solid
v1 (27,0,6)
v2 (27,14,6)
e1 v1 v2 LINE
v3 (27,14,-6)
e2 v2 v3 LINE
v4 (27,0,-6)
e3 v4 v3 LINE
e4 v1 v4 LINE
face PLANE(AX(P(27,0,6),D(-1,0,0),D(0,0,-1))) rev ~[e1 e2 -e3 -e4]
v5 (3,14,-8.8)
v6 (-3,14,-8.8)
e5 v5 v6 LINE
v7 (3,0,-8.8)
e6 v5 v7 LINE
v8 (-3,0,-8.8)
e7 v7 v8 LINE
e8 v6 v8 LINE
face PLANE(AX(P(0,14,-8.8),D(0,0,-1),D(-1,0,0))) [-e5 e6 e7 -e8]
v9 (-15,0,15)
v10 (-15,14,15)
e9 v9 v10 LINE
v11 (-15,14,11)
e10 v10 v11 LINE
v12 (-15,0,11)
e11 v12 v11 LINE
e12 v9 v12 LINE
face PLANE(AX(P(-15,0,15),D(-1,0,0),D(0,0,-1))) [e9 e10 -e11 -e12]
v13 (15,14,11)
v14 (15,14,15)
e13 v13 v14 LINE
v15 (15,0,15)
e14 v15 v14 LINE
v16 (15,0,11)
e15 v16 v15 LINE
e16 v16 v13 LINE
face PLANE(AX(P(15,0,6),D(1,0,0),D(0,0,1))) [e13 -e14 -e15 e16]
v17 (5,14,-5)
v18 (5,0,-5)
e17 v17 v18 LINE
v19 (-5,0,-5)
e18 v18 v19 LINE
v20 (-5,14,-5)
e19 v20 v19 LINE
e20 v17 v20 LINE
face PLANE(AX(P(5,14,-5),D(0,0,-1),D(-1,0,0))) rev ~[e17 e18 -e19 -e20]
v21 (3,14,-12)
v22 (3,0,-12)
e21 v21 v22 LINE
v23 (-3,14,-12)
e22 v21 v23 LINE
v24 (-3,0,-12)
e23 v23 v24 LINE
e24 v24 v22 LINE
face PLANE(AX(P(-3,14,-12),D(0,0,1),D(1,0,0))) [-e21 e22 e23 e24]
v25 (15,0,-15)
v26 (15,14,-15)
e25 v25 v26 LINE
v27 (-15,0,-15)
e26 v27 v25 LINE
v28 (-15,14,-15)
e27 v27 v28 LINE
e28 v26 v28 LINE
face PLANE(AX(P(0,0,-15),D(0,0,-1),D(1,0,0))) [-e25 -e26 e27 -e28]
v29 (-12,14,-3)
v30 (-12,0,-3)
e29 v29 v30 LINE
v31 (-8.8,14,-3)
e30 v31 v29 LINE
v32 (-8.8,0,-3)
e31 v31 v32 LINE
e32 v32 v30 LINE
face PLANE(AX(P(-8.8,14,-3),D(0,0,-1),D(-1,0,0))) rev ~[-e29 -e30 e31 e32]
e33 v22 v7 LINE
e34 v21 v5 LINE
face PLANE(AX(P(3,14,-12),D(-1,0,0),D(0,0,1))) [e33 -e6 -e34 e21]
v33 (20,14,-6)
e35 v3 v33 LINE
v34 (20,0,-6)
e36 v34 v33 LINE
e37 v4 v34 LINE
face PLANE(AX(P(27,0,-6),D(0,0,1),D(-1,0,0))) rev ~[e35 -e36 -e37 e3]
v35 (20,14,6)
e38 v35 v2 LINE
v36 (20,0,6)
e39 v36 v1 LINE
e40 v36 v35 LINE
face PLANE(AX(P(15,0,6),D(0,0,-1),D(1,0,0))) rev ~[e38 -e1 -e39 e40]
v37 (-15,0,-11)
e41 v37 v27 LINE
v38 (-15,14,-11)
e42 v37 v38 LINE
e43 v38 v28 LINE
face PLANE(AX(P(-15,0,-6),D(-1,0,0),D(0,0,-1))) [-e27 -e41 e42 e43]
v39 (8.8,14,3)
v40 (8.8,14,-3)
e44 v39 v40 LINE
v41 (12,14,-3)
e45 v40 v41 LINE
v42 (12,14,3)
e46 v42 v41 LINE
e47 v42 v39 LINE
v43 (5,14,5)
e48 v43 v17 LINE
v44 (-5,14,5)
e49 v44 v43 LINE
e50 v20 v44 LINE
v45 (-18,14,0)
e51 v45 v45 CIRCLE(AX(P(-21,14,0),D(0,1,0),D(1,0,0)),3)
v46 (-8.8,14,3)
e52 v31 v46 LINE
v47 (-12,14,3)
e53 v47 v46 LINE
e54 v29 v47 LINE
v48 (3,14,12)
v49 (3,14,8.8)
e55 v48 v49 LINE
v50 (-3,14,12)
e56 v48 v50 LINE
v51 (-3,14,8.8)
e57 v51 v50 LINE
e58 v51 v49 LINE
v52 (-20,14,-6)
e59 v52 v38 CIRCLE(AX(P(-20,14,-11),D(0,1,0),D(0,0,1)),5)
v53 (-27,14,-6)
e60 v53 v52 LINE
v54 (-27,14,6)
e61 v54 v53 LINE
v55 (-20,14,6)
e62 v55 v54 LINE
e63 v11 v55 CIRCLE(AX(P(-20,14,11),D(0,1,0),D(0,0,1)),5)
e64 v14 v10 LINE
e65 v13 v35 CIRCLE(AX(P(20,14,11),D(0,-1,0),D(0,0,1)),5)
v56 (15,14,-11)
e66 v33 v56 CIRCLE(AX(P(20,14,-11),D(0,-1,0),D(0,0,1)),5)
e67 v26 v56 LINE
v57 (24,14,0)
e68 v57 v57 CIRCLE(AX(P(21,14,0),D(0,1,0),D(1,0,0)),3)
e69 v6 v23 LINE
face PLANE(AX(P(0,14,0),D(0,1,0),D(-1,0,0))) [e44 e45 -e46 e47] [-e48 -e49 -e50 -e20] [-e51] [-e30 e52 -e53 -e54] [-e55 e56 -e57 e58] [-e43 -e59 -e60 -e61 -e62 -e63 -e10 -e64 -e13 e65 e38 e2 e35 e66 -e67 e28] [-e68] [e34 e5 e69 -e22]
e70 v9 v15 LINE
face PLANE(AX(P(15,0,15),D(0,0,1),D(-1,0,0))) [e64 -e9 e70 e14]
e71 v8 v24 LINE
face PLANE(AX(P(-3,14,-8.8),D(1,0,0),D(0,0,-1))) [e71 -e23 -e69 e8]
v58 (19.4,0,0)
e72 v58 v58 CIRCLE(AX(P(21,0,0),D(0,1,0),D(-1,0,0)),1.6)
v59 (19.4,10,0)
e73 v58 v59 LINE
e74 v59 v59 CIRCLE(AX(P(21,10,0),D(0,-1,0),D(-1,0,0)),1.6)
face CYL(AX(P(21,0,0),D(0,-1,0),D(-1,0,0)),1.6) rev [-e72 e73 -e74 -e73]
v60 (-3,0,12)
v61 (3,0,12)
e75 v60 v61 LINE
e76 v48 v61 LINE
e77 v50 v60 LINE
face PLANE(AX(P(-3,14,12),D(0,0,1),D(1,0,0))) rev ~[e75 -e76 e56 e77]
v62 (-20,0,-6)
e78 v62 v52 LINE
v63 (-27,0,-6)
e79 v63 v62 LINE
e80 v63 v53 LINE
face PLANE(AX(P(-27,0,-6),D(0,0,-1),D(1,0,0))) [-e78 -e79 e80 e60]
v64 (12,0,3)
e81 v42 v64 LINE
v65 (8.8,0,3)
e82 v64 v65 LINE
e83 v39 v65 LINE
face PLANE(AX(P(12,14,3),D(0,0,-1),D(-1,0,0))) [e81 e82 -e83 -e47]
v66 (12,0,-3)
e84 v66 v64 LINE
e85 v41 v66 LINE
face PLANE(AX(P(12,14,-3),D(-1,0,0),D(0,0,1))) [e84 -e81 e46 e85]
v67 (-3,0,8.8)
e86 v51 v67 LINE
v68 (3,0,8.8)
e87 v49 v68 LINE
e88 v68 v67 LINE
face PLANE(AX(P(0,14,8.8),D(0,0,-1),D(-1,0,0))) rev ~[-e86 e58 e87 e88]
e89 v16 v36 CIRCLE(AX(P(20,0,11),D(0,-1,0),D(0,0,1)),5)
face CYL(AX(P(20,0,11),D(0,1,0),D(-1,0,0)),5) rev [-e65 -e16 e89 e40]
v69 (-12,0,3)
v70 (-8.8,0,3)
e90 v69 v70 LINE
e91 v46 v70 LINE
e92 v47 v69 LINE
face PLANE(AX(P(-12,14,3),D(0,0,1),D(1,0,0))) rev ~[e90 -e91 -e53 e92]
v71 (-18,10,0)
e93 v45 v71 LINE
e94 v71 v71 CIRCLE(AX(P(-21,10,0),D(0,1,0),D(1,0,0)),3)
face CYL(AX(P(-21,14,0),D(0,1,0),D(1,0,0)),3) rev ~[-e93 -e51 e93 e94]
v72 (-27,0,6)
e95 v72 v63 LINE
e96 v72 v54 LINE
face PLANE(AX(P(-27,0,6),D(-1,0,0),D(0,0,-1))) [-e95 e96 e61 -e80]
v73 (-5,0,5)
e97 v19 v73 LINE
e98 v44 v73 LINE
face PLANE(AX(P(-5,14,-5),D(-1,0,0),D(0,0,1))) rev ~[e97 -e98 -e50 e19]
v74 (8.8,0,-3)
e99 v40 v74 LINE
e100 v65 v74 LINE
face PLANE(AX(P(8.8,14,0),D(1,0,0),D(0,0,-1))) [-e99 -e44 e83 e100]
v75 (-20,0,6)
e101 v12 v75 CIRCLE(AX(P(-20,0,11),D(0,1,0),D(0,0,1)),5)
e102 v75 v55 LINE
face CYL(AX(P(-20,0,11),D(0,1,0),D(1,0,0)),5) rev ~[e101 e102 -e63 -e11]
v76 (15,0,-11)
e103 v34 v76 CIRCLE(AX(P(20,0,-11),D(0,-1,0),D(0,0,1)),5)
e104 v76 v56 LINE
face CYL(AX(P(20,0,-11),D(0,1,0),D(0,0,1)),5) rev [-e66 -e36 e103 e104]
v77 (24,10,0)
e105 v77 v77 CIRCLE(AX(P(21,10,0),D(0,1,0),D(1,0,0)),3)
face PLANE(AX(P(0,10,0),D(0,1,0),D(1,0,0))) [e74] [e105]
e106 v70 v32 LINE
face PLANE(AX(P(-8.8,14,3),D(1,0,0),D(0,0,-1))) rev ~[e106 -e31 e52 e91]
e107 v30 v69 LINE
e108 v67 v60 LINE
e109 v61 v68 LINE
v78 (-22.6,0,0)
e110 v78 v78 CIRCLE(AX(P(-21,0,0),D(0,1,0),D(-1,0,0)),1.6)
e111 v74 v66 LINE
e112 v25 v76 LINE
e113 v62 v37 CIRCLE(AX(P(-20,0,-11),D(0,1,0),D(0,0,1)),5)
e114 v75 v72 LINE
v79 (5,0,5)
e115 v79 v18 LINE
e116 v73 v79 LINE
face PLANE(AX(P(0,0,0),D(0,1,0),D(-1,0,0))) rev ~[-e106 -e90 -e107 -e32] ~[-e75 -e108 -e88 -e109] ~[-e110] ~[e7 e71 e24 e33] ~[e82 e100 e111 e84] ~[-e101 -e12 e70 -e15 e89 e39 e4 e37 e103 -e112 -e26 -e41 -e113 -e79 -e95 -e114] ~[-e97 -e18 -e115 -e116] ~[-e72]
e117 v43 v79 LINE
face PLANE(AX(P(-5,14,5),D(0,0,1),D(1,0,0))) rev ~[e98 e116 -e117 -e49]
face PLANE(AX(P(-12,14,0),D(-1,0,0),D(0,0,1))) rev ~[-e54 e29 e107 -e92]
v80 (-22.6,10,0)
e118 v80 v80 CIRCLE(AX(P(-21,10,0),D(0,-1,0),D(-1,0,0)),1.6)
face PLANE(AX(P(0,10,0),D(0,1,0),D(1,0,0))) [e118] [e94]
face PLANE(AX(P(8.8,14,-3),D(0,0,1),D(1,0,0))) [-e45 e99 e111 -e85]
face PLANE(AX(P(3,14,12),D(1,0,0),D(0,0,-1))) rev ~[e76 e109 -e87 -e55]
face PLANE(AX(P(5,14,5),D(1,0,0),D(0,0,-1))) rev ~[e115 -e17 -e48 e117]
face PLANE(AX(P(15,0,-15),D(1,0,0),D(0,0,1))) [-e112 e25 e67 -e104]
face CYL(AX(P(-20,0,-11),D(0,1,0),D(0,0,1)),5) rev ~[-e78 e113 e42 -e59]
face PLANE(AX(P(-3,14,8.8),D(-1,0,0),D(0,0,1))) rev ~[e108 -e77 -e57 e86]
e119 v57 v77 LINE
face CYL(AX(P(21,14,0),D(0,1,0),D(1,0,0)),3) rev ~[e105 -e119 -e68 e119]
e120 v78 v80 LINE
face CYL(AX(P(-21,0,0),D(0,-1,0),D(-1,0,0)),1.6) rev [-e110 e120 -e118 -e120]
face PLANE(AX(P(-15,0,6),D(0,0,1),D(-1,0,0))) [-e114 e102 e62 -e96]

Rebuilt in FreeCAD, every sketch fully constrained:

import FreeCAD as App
import Part
import Sketcher
from FreeCAD import Vector
Q = App.Units.Quantity


def edges_at(feature, points):
    """Names of the edges that pass closest to the given points."""
    edges = feature.Shape.Edges
    near = lambda p: min(range(len(edges)), key=lambda i: edges[i].distToShape(Part.Vertex(*p))[0])
    return sorted({f"Edge{near(p) + 1}" for p in points})


def add_polygon(sketch, points):
    """Adds a closed chain of lines whose ends are joined by coincident constraints."""
    first, n = sketch.GeometryCount, len(points)
    for a, b in zip(points, points[1:] + points[:1]):
        sketch.addGeometry(Part.LineSegment(App.Vector(*a, 0), App.Vector(*b, 0)), False)
    for i in range(n):
        sketch.addConstraint(Sketcher.Constraint("Coincident", first + i, 2, first + (i + 1) % n, 1))

doc = App.newDocument("Part")
params = doc.addObject("Spreadsheet::Sheet", "Params")
for row, (alias, value) in enumerate([
    ("sketch1_diameter", "3.2 mm"),
    ("sketch1_width", "12 mm"),
    ("sketch1_width2", "30 mm"),
    ("sketch1_height", "9 mm"),
    ("pad1_length", "14 mm"),
    ("sketch2_width", "6 mm"),
    ("sketch2_width2", "3.2 mm"),
    ("sketch3_diameter", "6 mm"),
    ("pocket2_length", "4 mm"),
    ("fillet_radius", "5 mm"),
    ("sketch4_width", "10 mm"),
], start=1):
    params.set(f"A{row}", alias)
    params.set(f"B{row}", "=" + value)
    params.setAlias(f"B{row}", alias)

body = doc.addObject("PartDesign::Body", "Body")

sketch1 = doc.addObject("Sketcher::SketchObject", "Sketch")
body.addObject(sketch1)
sketch1.AttachmentSupport = (doc.XZ_Plane, [""])
sketch1.MapMode = "FlatFace"
add_polygon(sketch1, [(15, 15), (15, 6), (27, 6), (27, -6), (15, -6), (15, -15), (-15, -15), (-15, -6), (-27, -6), (-27, 6), (-15, 6), (-15, 15)])
sketch1.addGeometry(Part.Circle(Vector(21, 0, 0), Vector(0, 0, 1), 1.6), False)
sketch1.addGeometry(Part.Circle(Vector(-21, 0, 0), Vector(0, 0, 1), 1.6), False)
sketch1.addConstraint(Sketcher.Constraint("Vertical", 0))
sketch1.addConstraint(Sketcher.Constraint("Horizontal", 1))
sketch1.addConstraint(Sketcher.Constraint("Vertical", 2))
sketch1.addConstraint(Sketcher.Constraint("Horizontal", 3))
sketch1.addConstraint(Sketcher.Constraint("Vertical", 4))
sketch1.addConstraint(Sketcher.Constraint("Horizontal", 5))
sketch1.addConstraint(Sketcher.Constraint("Vertical", 6))
sketch1.addConstraint(Sketcher.Constraint("Horizontal", 7))
sketch1.addConstraint(Sketcher.Constraint("Vertical", 8))
sketch1.addConstraint(Sketcher.Constraint("Horizontal", 9))
sketch1.addConstraint(Sketcher.Constraint("Vertical", 10))
sketch1.addConstraint(Sketcher.Constraint("Horizontal", 11))
sketch1.addConstraint(Sketcher.Constraint("Equal", 12, 13))
sketch1.addConstraint(Sketcher.Constraint("Symmetric", 12, 3, 13, 3, -1, 1))
sketch1.addConstraint(Sketcher.Constraint("Symmetric", 0, 2, 6, 2, -1, 1))
sketch1.addConstraint(Sketcher.Constraint("Symmetric", 2, 2, 8, 2, -1, 1))
sketch1.addConstraint(Sketcher.Constraint("Symmetric", 4, 2, 10, 2, -1, 1))
sketch1.addConstraint(Sketcher.Constraint("Symmetric", 3, 2, 6, 2, -2))
sketch1.addConstraint(Sketcher.Constraint("PointOnObject", 12, 3, -1))
sketch1.addConstraint(Sketcher.Constraint("Equal", 9, 2))
sketch1.addConstraint(Sketcher.Constraint("Diameter", 12, Q("3.2 mm")))
sketch1.addConstraint(Sketcher.Constraint("DistanceX", 1, 1, 1, 2, Q("12 mm")))
sketch1.addConstraint(Sketcher.Constraint("DistanceX", 5, 2, 5, 1, Q("30 mm")))
sketch1.addConstraint(Sketcher.Constraint("DistanceY", 0, 2, 0, 1, Q("9 mm")))
sketch1.addConstraint(Sketcher.Constraint("DistanceX", -1, 1, 12, 3, Q("21 mm")))
sketch1.setExpression("Constraints[32]", "Params.sketch1_diameter")
sketch1.setExpression("Constraints[33]", "Params.sketch1_width")
sketch1.setExpression("Constraints[34]", "Params.sketch1_width2")
sketch1.setExpression("Constraints[35]", "Params.sketch1_height")
pad1 = doc.addObject("PartDesign::Pad", "Pad")
body.addObject(pad1)
pad1.Profile = sketch1
pad1.setExpression("Length", "Params.pad1_length")
pad1.Reversed = True

sketch2 = doc.addObject("Sketcher::SketchObject", "Sketch001")
body.addObject(sketch2)
sketch2.AttachmentSupport = (doc.XZ_Plane, [""])
sketch2.MapMode = "FlatFace"
sketch2.AttachmentOffset = App.Placement(Vector(0, 0, -14), App.Rotation())
add_polygon(sketch2, [(-3, 8.8), (-3, 12), (3, 12), (3, 8.8)])
add_polygon(sketch2, [(-8.8, 3), (-8.8, -3), (-12, -3), (-12, 3)])
add_polygon(sketch2, [(8.8, -3), (8.8, 3), (12, 3), (12, -3)])
add_polygon(sketch2, [(-3, -8.8), (3, -8.8), (3, -12), (-3, -12)])
sketch2.addConstraint(Sketcher.Constraint("Vertical", 0))
sketch2.addConstraint(Sketcher.Constraint("Horizontal", 1))
sketch2.addConstraint(Sketcher.Constraint("Vertical", 2))
sketch2.addConstraint(Sketcher.Constraint("Horizontal", 3))
sketch2.addConstraint(Sketcher.Constraint("Vertical", 4))
sketch2.addConstraint(Sketcher.Constraint("Horizontal", 5))
sketch2.addConstraint(Sketcher.Constraint("Vertical", 6))
sketch2.addConstraint(Sketcher.Constraint("Horizontal", 7))
sketch2.addConstraint(Sketcher.Constraint("Vertical", 8))
sketch2.addConstraint(Sketcher.Constraint("Horizontal", 9))
sketch2.addConstraint(Sketcher.Constraint("Vertical", 10))
sketch2.addConstraint(Sketcher.Constraint("Horizontal", 11))
sketch2.addConstraint(Sketcher.Constraint("Horizontal", 12))
sketch2.addConstraint(Sketcher.Constraint("Vertical", 13))
sketch2.addConstraint(Sketcher.Constraint("Horizontal", 14))
sketch2.addConstraint(Sketcher.Constraint("Vertical", 15))
sketch2.addConstraint(Sketcher.Constraint("Symmetric", 4, 2, 8, 2, -1, 1))
sketch2.addConstraint(Sketcher.Constraint("Symmetric", 6, 2, 10, 2, -1, 1))
sketch2.addConstraint(Sketcher.Constraint("Symmetric", 3, 2, 12, 2, -1, 1))
sketch2.addConstraint(Sketcher.Constraint("Symmetric", 1, 2, 14, 2, -1, 1))
sketch2.addConstraint(Sketcher.Constraint("Horizontal", 7, 2, 8, 2))
sketch2.addConstraint(Sketcher.Constraint("Vertical", 2, 2, 12, 2))
sketch2.addConstraint(Sketcher.Constraint("Equal", 11, 0))
sketch2.addConstraint(Sketcher.Constraint("Equal", 14, 4))
sketch2.addConstraint(Sketcher.Constraint("DistanceX", 1, 1, 1, 2, Q("6 mm")))
sketch2.addConstraint(Sketcher.Constraint("DistanceX", 5, 2, 5, 1, Q("3.2 mm")))
sketch2.addConstraint(Sketcher.Constraint("DistanceY", -1, 1, 0, 2, Q("12 mm")))
sketch2.addConstraint(Sketcher.Constraint("DistanceX", 5, 2, -1, 1, Q("12 mm")))
sketch2.setExpression("Constraints[40]", "Params.sketch2_width")
sketch2.setExpression("Constraints[41]", "Params.sketch2_width2")
pocket1 = doc.addObject("PartDesign::Pocket", "Pocket")
body.addObject(pocket1)
pocket1.Profile = sketch2
pocket1.Type = "ThroughAll"
pocket1.Reversed = True

sketch3 = doc.addObject("Sketcher::SketchObject", "Sketch002")
body.addObject(sketch3)
sketch3.AttachmentSupport = (doc.XZ_Plane, [""])
sketch3.MapMode = "FlatFace"
sketch3.AttachmentOffset = App.Placement(Vector(0, 0, -14), App.Rotation())
sketch3.addGeometry(Part.Circle(Vector(-21, 0, 0), Vector(0, 0, 1), 3), False)
sketch3.addGeometry(Part.Circle(Vector(21, 0, 0), Vector(0, 0, 1), 3), False)
sketch3.addConstraint(Sketcher.Constraint("Equal", 0, 1))
sketch3.addConstraint(Sketcher.Constraint("Symmetric", 0, 3, 1, 3, -1, 1))
sketch3.addConstraint(Sketcher.Constraint("PointOnObject", 0, 3, -1))
sketch3.addConstraint(Sketcher.Constraint("Diameter", 0, Q("6 mm")))
sketch3.addConstraint(Sketcher.Constraint("DistanceX", 0, 3, -1, 1, Q("21 mm")))
sketch3.setExpression("Constraints[3]", "Params.sketch3_diameter")
pocket2 = doc.addObject("PartDesign::Pocket", "Pocket001")
body.addObject(pocket2)
pocket2.Profile = sketch3
pocket2.setExpression("Length", "Params.pocket2_length")
pocket2.Reversed = True
doc.recompute()

fillet = doc.addObject("PartDesign::Fillet", "Fillet")
body.addObject(fillet)
fillet.Base = (pocket2, edges_at(pocket2, [
    (15, 7, -6),
    (15, 7, 6),
    (-15, 7, 6),
    (-15, 7, -6),
]))
fillet.setExpression("Radius", "Params.fillet_radius")

sketch4 = doc.addObject("Sketcher::SketchObject", "Sketch003")
body.addObject(sketch4)
sketch4.AttachmentSupport = (doc.XZ_Plane, [""])
sketch4.MapMode = "FlatFace"
sketch4.AttachmentOffset = App.Placement(Vector(0, 0, -14), App.Rotation())
add_polygon(sketch4, [(5, 5), (5, -5), (-5, -5), (-5, 5)])
sketch4.addConstraint(Sketcher.Constraint("Vertical", 0))
sketch4.addConstraint(Sketcher.Constraint("Horizontal", 1))
sketch4.addConstraint(Sketcher.Constraint("Vertical", 2))
sketch4.addConstraint(Sketcher.Constraint("Horizontal", 3))
sketch4.addConstraint(Sketcher.Constraint("Symmetric", 0, 2, 2, 2, -1, 1))
sketch4.addConstraint(Sketcher.Constraint("Equal", 3, 0))
sketch4.addConstraint(Sketcher.Constraint("DistanceX", 1, 2, 1, 1, Q("10 mm")))
sketch4.setExpression("Constraints[10]", "Params.sketch4_width")
pocket3 = doc.addObject("PartDesign::Pocket", "Pocket002")
body.addObject(pocket3)
pocket3.Profile = sketch4
pocket3.Type = "ThroughAll"
pocket3.Reversed = True

doc.recompute()
